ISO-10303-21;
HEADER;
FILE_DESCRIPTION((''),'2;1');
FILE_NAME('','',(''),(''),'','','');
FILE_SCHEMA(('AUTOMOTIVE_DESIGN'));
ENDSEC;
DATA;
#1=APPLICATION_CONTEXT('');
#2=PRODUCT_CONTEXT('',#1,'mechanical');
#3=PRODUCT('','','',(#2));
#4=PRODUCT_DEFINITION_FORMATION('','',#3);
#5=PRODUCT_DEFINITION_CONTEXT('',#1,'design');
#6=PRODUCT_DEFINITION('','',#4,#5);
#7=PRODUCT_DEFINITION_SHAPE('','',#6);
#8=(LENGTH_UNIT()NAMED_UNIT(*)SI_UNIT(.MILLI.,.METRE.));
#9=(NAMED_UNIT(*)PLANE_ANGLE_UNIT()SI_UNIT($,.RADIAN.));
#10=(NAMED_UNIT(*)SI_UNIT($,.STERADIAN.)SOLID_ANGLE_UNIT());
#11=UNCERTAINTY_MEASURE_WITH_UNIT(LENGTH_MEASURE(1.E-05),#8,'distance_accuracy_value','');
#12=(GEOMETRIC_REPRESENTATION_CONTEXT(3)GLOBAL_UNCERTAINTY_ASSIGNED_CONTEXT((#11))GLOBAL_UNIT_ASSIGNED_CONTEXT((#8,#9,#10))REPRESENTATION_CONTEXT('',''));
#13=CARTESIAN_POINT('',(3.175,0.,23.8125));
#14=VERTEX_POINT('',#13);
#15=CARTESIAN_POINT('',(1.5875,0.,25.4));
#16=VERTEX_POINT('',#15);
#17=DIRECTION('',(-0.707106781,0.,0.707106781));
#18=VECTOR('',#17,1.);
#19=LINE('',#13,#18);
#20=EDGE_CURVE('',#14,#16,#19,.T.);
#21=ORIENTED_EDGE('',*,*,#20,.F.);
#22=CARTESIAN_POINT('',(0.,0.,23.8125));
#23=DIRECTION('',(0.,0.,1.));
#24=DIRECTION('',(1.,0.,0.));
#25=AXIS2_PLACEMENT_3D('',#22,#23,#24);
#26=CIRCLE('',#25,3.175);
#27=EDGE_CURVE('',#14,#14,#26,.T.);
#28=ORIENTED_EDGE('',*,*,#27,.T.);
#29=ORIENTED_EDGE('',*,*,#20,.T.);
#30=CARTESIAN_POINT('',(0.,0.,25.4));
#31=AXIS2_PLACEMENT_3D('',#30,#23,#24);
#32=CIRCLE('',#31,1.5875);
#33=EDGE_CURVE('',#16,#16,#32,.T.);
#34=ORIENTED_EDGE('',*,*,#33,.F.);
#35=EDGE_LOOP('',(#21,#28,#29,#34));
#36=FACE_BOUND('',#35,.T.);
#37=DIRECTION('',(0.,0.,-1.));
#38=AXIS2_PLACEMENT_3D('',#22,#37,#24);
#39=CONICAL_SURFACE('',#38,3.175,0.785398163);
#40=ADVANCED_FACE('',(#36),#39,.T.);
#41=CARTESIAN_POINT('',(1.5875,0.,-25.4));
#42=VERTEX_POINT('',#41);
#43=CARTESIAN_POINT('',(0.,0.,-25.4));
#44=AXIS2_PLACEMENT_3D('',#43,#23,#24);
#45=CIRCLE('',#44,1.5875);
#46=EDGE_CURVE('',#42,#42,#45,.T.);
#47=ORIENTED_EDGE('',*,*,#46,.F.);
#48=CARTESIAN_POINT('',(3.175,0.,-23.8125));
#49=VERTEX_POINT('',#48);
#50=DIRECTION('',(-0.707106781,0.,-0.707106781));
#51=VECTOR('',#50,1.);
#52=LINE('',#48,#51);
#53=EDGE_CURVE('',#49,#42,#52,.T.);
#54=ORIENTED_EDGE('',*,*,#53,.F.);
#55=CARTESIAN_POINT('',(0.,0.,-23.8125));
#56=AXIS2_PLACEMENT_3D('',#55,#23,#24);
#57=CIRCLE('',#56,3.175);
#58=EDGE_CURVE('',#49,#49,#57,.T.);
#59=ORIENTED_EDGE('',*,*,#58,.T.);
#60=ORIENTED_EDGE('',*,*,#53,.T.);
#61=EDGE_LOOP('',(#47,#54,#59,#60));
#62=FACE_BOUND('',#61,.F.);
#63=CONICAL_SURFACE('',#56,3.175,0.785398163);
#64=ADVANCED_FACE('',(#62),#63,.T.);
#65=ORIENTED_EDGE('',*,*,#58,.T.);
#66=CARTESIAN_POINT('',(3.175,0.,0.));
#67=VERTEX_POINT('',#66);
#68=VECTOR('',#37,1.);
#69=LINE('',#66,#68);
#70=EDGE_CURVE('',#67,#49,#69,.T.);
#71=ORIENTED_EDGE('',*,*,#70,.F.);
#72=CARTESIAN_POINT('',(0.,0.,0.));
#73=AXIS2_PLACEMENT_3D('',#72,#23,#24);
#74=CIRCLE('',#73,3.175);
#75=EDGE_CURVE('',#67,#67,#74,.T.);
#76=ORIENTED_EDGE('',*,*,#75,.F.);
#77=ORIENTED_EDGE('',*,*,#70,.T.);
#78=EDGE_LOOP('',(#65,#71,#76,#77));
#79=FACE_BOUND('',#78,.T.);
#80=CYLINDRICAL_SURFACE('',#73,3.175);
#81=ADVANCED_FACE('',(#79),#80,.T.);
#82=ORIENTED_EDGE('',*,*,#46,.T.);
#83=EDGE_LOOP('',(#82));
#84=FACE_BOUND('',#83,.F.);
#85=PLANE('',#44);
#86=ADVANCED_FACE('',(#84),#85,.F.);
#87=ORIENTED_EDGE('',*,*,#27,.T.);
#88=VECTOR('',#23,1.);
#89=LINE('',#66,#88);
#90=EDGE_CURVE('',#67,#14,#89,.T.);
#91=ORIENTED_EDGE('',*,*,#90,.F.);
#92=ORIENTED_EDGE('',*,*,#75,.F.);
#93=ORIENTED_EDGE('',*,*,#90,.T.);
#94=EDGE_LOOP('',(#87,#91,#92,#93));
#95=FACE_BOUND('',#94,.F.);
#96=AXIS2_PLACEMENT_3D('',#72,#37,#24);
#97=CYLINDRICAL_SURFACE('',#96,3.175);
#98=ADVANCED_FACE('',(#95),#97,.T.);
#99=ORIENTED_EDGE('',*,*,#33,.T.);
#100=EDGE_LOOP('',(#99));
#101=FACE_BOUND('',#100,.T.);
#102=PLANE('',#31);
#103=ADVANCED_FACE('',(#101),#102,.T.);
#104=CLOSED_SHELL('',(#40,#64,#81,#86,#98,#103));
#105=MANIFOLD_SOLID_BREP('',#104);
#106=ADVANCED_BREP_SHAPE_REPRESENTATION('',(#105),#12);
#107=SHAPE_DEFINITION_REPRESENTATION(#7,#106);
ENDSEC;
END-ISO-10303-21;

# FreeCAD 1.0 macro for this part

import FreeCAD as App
import Part
import Sketcher
Q = App.Units.Quantity


def edges_at(feature, points):
    """Names of the edges that pass closest to the given points."""
    edges = feature.Shape.Edges
    near = lambda p: min(range(len(edges)), key=lambda i: edges[i].distToShape(Part.Vertex(*p))[0])
    return sorted({f"Edge{near(p) + 1}" for p in points})

doc = App.newDocument("Part")
body = doc.addObject("PartDesign::Body", "Body")

# Sketch on XY plane
sketch1 = body.newObject("Sketcher::SketchObject", "Sketch")
sketch1.AttachmentSupport = (doc.getObject("XY_Plane"), [""])
sketch1.MapMode = "FlatFace"
sketch1.addGeometry(Part.Circle(App.Vector(0, 0, 0), App.Vector(0, 0, 1), 3.2), False)
sketch1.addConstraint([
    Sketcher.Constraint("Coincident", 0, 3, -1, 1),
    Sketcher.Constraint("Diameter", 0, Q("0.25 in")),
])
pad1 = body.newObject("PartDesign::Pad", "Pad")
pad1.Profile = sketch1
pad1.Length = Q("2 in")
pad1.Midplane = True
doc.recompute()

chamfer = body.newObject("PartDesign::Chamfer", "Chamfer")
chamfer.Base = (pad1, edges_at(pad1, [(-3.175, 0, 25.4), (-3.175, 0, -25.4)]))
chamfer.Size = Q("0.0625 in")

doc.recompute()
